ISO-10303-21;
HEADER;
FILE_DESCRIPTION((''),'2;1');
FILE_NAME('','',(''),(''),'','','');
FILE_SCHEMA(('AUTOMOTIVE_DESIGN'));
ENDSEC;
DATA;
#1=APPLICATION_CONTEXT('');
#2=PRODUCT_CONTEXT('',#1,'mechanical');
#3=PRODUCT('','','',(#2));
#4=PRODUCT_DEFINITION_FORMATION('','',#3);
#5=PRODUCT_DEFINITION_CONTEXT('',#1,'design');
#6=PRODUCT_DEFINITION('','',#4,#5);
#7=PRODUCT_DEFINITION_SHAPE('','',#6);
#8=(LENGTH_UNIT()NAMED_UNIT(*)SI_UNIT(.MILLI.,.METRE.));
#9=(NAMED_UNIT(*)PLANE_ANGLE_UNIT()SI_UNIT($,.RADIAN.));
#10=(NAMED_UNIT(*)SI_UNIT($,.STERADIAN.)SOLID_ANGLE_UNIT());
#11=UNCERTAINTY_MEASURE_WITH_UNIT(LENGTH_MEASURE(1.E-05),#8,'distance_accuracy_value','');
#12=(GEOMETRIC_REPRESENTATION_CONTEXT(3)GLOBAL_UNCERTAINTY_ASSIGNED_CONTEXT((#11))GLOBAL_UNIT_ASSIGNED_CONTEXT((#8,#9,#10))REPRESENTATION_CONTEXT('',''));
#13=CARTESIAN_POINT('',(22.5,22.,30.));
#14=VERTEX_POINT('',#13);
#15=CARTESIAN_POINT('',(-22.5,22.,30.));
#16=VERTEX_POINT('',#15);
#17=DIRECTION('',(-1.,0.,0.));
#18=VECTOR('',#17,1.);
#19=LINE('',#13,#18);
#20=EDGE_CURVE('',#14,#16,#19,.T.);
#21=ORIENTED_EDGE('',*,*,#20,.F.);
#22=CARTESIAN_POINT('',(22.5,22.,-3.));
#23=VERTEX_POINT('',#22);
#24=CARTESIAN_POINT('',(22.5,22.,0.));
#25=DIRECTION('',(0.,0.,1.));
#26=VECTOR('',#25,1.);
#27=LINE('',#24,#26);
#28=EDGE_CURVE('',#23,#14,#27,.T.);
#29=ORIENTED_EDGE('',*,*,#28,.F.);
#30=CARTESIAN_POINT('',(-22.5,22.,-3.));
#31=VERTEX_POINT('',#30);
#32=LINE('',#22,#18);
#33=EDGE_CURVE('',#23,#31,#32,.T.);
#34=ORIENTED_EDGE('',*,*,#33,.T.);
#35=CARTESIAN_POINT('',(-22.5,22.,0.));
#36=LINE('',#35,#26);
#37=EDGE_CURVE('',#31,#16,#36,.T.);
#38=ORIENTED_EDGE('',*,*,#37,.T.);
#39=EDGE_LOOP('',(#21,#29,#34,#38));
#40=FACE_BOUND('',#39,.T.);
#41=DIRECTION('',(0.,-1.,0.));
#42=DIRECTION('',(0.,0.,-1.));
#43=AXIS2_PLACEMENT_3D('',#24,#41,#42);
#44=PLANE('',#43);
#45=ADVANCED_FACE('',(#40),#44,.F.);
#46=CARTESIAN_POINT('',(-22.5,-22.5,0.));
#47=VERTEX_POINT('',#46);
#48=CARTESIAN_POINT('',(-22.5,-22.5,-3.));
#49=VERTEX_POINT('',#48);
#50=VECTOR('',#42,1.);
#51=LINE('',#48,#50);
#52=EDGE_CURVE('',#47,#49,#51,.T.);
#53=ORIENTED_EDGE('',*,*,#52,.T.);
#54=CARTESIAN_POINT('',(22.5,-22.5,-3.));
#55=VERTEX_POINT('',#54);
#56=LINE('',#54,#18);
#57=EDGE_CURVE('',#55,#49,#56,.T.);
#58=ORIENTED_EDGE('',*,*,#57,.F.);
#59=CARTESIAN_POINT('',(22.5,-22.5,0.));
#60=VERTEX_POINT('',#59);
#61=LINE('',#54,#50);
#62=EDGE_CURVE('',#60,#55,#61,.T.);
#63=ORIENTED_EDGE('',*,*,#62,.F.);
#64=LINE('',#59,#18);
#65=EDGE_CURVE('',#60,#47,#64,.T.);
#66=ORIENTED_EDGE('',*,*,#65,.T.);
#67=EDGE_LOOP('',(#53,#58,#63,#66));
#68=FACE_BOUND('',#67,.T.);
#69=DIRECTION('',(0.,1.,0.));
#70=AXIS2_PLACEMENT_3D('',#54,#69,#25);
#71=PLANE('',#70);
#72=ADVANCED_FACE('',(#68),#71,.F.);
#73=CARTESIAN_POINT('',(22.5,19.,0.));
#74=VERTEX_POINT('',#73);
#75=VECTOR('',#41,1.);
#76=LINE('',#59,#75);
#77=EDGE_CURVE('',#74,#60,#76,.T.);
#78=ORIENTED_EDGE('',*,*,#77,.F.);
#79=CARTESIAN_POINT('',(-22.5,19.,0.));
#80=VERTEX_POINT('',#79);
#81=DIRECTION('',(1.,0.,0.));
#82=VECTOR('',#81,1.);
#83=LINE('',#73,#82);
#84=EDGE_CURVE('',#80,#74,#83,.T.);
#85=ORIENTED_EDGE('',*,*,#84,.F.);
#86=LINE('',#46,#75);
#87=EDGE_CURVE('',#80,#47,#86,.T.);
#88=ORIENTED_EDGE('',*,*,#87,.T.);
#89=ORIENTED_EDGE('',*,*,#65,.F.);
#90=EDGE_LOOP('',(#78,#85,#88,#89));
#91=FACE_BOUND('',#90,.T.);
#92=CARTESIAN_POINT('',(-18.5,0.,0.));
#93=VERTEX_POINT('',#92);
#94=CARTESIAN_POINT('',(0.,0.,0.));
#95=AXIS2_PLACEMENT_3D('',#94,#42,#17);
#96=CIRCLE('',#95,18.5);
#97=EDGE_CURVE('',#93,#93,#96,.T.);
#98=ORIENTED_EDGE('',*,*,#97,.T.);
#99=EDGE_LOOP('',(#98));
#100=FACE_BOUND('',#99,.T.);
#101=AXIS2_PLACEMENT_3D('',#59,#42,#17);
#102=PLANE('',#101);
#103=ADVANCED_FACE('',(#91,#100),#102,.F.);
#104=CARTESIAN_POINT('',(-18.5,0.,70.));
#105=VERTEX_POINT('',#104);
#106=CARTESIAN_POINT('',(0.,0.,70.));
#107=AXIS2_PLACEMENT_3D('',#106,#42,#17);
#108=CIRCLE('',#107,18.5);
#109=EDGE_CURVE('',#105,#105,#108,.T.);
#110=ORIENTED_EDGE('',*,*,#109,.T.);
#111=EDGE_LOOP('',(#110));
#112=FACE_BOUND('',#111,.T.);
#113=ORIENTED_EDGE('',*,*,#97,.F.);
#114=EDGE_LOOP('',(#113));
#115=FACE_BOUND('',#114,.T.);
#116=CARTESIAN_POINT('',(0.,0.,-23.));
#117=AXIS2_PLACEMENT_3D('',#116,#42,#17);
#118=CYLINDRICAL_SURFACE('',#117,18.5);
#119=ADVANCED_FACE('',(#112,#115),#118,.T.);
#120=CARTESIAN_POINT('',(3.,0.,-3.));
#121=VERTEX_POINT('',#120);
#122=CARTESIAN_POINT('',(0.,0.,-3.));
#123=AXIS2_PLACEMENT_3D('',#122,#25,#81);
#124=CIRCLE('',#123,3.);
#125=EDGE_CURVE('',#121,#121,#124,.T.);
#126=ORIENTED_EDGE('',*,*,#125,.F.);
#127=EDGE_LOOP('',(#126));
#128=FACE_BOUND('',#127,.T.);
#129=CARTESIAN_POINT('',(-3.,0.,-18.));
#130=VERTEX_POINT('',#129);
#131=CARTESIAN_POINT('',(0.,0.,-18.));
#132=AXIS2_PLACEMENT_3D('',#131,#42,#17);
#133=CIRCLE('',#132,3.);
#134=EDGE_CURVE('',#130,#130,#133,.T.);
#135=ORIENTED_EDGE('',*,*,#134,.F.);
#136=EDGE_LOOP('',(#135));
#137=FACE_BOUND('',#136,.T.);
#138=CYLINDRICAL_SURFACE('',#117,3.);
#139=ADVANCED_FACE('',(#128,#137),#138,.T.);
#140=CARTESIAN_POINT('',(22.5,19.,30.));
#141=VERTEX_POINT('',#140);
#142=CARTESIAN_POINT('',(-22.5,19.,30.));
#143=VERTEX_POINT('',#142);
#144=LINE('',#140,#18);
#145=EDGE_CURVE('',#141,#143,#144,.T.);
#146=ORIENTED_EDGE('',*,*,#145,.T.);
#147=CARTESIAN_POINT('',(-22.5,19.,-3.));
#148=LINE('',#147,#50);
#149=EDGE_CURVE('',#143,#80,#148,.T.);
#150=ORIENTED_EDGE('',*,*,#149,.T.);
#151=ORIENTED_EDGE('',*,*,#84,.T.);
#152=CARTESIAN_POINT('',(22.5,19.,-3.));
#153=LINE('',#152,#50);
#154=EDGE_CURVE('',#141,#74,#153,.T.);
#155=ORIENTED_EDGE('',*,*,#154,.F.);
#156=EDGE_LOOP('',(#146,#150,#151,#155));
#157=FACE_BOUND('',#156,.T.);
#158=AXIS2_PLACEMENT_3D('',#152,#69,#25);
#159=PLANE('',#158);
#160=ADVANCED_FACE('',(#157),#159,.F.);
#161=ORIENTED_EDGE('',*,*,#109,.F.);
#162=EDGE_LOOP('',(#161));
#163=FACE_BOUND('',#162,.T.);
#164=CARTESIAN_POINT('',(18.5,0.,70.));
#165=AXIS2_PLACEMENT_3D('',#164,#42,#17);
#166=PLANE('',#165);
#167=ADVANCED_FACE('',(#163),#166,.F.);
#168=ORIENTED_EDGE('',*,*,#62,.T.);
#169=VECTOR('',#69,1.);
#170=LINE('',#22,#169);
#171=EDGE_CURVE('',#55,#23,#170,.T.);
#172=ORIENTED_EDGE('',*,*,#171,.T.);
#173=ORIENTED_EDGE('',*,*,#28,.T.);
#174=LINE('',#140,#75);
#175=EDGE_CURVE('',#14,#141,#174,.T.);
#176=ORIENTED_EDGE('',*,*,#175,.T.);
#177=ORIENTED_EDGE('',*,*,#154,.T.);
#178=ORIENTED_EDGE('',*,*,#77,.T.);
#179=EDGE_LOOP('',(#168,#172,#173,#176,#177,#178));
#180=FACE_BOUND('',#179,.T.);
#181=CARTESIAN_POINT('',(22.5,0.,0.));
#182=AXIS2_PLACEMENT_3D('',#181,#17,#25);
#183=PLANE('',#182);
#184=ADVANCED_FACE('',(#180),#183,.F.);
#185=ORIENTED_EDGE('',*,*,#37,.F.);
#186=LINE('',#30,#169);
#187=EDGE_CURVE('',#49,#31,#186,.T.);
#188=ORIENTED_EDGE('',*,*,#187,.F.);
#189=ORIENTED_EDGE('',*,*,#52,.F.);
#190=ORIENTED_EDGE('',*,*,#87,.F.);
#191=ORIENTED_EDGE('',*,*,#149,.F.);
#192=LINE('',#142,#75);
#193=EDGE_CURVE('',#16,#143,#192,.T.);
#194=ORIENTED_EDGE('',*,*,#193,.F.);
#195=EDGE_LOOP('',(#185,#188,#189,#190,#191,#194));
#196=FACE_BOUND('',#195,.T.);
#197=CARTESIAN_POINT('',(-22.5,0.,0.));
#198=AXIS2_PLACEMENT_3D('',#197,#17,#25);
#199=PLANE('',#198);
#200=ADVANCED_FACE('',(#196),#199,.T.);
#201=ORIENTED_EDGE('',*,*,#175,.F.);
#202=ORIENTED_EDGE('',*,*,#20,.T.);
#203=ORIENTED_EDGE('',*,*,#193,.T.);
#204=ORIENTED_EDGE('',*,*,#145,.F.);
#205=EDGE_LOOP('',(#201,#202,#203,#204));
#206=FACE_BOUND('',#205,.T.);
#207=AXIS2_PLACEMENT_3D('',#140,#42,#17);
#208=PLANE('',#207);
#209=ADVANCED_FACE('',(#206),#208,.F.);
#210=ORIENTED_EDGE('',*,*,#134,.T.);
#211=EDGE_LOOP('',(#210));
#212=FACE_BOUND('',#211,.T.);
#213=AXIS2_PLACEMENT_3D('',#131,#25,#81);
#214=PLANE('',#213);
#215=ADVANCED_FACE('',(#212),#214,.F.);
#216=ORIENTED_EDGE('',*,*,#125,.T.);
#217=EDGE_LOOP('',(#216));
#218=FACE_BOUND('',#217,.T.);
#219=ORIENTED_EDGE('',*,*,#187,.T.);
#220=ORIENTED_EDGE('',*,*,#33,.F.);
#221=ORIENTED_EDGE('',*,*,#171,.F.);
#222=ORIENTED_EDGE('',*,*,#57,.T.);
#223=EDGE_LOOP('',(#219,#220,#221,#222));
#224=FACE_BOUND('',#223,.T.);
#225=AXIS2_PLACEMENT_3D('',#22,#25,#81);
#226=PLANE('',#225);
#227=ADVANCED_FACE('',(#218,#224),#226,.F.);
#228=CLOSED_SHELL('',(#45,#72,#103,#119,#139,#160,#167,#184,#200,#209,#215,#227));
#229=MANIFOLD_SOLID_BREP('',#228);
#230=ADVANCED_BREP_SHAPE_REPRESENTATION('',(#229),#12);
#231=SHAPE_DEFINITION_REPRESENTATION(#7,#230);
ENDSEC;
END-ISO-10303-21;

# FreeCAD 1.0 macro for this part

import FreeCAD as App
import Part
import Sketcher
Q = App.Units.Quantity

doc = App.newDocument("Part")
body = doc.addObject("PartDesign::Body", "Body")

sketch1 = body.newObject("Sketcher::SketchObject", "Sketch")
sketch1.AttachmentSupport = (doc.getObject("XZ_Plane"), [""])
sketch1.MapMode = "FlatFace"
sketch1.addGeometry([
    Part.LineSegment(App.Vector(3, -18, 0), App.Vector(0, -18, 0)),
    Part.LineSegment(App.Vector(0, -18, 0), App.Vector(0, 70, 0)),
    Part.LineSegment(App.Vector(0, 70, 0), App.Vector(18.5, 70, 0)),
    Part.LineSegment(App.Vector(18.5, 70, 0), App.Vector(18.5, 0, 0)),
    Part.LineSegment(App.Vector(18.5, 0, 0), App.Vector(3, 0, 0)),
    Part.LineSegment(App.Vector(3, 0, 0), App.Vector(3, -18, 0)),
], False)
sketch1.addConstraint([
    Sketcher.Constraint("Coincident", 0, 2, 1, 1),
    Sketcher.Constraint("Coincident", 1, 2, 2, 1),
    Sketcher.Constraint("Coincident", 2, 2, 3, 1),
    Sketcher.Constraint("Coincident", 3, 2, 4, 1),
    Sketcher.Constraint("Coincident", 4, 2, 5, 1),
    Sketcher.Constraint("Coincident", 5, 2, 0, 1),
    Sketcher.Constraint("Horizontal", 0),
    Sketcher.Constraint("Vertical", 1),
    Sketcher.Constraint("Horizontal", 2),
    Sketcher.Constraint("Vertical", 3),
    Sketcher.Constraint("Horizontal", 4),
    Sketcher.Constraint("Vertical", 5),
    Sketcher.Constraint("PointOnObject", 0, 2, -2),
    Sketcher.Constraint("PointOnObject", 3, 2, -1),
    Sketcher.Constraint("DistanceX", 0, 2, 0, 1, Q("3 mm")),
    Sketcher.Constraint("DistanceY", 1, 1, 1, 2, Q("88 mm")),
    Sketcher.Constraint("DistanceY", 3, 2, 3, 1, Q("70 mm")),
    Sketcher.Constraint("DistanceX", 2, 1, 2, 2, Q("18.5 mm")),
])
revolution = body.newObject("PartDesign::Revolution", "Revolution")
revolution.Profile = sketch1
revolution.ReferenceAxis = (sketch1, ["V_Axis"])
revolution.Angle = 360

sketch2 = body.newObject("Sketcher::SketchObject", "Sketch001")
sketch2.AttachmentSupport = (doc.getObject("YZ_Plane"), [""])
sketch2.MapMode = "FlatFace"
sketch2.addGeometry([
    Part.LineSegment(App.Vector(22, 0, 0), App.Vector(-22.5, 0, 0)),
    Part.LineSegment(App.Vector(-22.5, 0, 0), App.Vector(-22.5, -3, 0)),
    Part.LineSegment(App.Vector(-22.5, -3, 0), App.Vector(22, -3, 0)),
    Part.LineSegment(App.Vector(22, -3, 0), App.Vector(22, 0, 0)),
], False)
sketch2.addConstraint([
    Sketcher.Constraint("Coincident", 0, 2, 1, 1),
    Sketcher.Constraint("Coincident", 1, 2, 2, 1),
    Sketcher.Constraint("Coincident", 2, 2, 3, 1),
    Sketcher.Constraint("Coincident", 3, 2, 0, 1),
    Sketcher.Constraint("Horizontal", 0),
    Sketcher.Constraint("Vertical", 1),
    Sketcher.Constraint("Horizontal", 2),
    Sketcher.Constraint("Vertical", 3),
    Sketcher.Constraint("PointOnObject", 0, 2, -1),
    Sketcher.Constraint("DistanceY", 1, 2, 1, 1, Q("3 mm")),
    Sketcher.Constraint("DistanceX", 0, 2, 0, 1, Q("44.5 mm")),
    Sketcher.Constraint("DistanceX", -1, 1, 2, 2, Q("22 mm")),
])
pad1 = body.newObject("PartDesign::Pad", "Pad")
pad1.Profile = sketch2
pad1.Length = 45
pad1.Midplane = True

sketch3 = body.newObject("Sketcher::SketchObject", "Sketch002")
sketch3.AttachmentSupport = (doc.getObject("YZ_Plane"), [""])
sketch3.MapMode = "FlatFace"
sketch3.addGeometry([
    Part.LineSegment(App.Vector(22, 30, 0), App.Vector(19, 30, 0)),
    Part.LineSegment(App.Vector(19, 30, 0), App.Vector(19, -3, 0)),
    Part.LineSegment(App.Vector(19, -3, 0), App.Vector(22, -3, 0)),
    Part.LineSegment(App.Vector(22, -3, 0), App.Vector(22, 30, 0)),
], False)
sketch3.addConstraint([
    Sketcher.Constraint("Coincident", 0, 2, 1, 1),
    Sketcher.Constraint("Coincident", 1, 2, 2, 1),
    Sketcher.Constraint("Coincident", 2, 2, 3, 1),
    Sketcher.Constraint("Coincident", 3, 2, 0, 1),
    Sketcher.Constraint("Horizontal", 0),
    Sketcher.Constraint("Vertical", 1),
    Sketcher.Constraint("Horizontal", 2),
    Sketcher.Constraint("Vertical", 3),
    Sketcher.Constraint("DistanceX", 0, 2, 0, 1, Q("3 mm")),
    Sketcher.Constraint("DistanceY", 1, 2, 1, 1, Q("33 mm")),
    Sketcher.Constraint("DistanceX", -1, 1, 0, 2, Q("19 mm")),
    Sketcher.Constraint("DistanceY", -1, 1, 0, 2, Q("30 mm")),
])
pad2 = body.newObject("PartDesign::Pad", "Pad001")
pad2.Profile = sketch3
pad2.Length = 45
pad2.Midplane = True

doc.recompute()
